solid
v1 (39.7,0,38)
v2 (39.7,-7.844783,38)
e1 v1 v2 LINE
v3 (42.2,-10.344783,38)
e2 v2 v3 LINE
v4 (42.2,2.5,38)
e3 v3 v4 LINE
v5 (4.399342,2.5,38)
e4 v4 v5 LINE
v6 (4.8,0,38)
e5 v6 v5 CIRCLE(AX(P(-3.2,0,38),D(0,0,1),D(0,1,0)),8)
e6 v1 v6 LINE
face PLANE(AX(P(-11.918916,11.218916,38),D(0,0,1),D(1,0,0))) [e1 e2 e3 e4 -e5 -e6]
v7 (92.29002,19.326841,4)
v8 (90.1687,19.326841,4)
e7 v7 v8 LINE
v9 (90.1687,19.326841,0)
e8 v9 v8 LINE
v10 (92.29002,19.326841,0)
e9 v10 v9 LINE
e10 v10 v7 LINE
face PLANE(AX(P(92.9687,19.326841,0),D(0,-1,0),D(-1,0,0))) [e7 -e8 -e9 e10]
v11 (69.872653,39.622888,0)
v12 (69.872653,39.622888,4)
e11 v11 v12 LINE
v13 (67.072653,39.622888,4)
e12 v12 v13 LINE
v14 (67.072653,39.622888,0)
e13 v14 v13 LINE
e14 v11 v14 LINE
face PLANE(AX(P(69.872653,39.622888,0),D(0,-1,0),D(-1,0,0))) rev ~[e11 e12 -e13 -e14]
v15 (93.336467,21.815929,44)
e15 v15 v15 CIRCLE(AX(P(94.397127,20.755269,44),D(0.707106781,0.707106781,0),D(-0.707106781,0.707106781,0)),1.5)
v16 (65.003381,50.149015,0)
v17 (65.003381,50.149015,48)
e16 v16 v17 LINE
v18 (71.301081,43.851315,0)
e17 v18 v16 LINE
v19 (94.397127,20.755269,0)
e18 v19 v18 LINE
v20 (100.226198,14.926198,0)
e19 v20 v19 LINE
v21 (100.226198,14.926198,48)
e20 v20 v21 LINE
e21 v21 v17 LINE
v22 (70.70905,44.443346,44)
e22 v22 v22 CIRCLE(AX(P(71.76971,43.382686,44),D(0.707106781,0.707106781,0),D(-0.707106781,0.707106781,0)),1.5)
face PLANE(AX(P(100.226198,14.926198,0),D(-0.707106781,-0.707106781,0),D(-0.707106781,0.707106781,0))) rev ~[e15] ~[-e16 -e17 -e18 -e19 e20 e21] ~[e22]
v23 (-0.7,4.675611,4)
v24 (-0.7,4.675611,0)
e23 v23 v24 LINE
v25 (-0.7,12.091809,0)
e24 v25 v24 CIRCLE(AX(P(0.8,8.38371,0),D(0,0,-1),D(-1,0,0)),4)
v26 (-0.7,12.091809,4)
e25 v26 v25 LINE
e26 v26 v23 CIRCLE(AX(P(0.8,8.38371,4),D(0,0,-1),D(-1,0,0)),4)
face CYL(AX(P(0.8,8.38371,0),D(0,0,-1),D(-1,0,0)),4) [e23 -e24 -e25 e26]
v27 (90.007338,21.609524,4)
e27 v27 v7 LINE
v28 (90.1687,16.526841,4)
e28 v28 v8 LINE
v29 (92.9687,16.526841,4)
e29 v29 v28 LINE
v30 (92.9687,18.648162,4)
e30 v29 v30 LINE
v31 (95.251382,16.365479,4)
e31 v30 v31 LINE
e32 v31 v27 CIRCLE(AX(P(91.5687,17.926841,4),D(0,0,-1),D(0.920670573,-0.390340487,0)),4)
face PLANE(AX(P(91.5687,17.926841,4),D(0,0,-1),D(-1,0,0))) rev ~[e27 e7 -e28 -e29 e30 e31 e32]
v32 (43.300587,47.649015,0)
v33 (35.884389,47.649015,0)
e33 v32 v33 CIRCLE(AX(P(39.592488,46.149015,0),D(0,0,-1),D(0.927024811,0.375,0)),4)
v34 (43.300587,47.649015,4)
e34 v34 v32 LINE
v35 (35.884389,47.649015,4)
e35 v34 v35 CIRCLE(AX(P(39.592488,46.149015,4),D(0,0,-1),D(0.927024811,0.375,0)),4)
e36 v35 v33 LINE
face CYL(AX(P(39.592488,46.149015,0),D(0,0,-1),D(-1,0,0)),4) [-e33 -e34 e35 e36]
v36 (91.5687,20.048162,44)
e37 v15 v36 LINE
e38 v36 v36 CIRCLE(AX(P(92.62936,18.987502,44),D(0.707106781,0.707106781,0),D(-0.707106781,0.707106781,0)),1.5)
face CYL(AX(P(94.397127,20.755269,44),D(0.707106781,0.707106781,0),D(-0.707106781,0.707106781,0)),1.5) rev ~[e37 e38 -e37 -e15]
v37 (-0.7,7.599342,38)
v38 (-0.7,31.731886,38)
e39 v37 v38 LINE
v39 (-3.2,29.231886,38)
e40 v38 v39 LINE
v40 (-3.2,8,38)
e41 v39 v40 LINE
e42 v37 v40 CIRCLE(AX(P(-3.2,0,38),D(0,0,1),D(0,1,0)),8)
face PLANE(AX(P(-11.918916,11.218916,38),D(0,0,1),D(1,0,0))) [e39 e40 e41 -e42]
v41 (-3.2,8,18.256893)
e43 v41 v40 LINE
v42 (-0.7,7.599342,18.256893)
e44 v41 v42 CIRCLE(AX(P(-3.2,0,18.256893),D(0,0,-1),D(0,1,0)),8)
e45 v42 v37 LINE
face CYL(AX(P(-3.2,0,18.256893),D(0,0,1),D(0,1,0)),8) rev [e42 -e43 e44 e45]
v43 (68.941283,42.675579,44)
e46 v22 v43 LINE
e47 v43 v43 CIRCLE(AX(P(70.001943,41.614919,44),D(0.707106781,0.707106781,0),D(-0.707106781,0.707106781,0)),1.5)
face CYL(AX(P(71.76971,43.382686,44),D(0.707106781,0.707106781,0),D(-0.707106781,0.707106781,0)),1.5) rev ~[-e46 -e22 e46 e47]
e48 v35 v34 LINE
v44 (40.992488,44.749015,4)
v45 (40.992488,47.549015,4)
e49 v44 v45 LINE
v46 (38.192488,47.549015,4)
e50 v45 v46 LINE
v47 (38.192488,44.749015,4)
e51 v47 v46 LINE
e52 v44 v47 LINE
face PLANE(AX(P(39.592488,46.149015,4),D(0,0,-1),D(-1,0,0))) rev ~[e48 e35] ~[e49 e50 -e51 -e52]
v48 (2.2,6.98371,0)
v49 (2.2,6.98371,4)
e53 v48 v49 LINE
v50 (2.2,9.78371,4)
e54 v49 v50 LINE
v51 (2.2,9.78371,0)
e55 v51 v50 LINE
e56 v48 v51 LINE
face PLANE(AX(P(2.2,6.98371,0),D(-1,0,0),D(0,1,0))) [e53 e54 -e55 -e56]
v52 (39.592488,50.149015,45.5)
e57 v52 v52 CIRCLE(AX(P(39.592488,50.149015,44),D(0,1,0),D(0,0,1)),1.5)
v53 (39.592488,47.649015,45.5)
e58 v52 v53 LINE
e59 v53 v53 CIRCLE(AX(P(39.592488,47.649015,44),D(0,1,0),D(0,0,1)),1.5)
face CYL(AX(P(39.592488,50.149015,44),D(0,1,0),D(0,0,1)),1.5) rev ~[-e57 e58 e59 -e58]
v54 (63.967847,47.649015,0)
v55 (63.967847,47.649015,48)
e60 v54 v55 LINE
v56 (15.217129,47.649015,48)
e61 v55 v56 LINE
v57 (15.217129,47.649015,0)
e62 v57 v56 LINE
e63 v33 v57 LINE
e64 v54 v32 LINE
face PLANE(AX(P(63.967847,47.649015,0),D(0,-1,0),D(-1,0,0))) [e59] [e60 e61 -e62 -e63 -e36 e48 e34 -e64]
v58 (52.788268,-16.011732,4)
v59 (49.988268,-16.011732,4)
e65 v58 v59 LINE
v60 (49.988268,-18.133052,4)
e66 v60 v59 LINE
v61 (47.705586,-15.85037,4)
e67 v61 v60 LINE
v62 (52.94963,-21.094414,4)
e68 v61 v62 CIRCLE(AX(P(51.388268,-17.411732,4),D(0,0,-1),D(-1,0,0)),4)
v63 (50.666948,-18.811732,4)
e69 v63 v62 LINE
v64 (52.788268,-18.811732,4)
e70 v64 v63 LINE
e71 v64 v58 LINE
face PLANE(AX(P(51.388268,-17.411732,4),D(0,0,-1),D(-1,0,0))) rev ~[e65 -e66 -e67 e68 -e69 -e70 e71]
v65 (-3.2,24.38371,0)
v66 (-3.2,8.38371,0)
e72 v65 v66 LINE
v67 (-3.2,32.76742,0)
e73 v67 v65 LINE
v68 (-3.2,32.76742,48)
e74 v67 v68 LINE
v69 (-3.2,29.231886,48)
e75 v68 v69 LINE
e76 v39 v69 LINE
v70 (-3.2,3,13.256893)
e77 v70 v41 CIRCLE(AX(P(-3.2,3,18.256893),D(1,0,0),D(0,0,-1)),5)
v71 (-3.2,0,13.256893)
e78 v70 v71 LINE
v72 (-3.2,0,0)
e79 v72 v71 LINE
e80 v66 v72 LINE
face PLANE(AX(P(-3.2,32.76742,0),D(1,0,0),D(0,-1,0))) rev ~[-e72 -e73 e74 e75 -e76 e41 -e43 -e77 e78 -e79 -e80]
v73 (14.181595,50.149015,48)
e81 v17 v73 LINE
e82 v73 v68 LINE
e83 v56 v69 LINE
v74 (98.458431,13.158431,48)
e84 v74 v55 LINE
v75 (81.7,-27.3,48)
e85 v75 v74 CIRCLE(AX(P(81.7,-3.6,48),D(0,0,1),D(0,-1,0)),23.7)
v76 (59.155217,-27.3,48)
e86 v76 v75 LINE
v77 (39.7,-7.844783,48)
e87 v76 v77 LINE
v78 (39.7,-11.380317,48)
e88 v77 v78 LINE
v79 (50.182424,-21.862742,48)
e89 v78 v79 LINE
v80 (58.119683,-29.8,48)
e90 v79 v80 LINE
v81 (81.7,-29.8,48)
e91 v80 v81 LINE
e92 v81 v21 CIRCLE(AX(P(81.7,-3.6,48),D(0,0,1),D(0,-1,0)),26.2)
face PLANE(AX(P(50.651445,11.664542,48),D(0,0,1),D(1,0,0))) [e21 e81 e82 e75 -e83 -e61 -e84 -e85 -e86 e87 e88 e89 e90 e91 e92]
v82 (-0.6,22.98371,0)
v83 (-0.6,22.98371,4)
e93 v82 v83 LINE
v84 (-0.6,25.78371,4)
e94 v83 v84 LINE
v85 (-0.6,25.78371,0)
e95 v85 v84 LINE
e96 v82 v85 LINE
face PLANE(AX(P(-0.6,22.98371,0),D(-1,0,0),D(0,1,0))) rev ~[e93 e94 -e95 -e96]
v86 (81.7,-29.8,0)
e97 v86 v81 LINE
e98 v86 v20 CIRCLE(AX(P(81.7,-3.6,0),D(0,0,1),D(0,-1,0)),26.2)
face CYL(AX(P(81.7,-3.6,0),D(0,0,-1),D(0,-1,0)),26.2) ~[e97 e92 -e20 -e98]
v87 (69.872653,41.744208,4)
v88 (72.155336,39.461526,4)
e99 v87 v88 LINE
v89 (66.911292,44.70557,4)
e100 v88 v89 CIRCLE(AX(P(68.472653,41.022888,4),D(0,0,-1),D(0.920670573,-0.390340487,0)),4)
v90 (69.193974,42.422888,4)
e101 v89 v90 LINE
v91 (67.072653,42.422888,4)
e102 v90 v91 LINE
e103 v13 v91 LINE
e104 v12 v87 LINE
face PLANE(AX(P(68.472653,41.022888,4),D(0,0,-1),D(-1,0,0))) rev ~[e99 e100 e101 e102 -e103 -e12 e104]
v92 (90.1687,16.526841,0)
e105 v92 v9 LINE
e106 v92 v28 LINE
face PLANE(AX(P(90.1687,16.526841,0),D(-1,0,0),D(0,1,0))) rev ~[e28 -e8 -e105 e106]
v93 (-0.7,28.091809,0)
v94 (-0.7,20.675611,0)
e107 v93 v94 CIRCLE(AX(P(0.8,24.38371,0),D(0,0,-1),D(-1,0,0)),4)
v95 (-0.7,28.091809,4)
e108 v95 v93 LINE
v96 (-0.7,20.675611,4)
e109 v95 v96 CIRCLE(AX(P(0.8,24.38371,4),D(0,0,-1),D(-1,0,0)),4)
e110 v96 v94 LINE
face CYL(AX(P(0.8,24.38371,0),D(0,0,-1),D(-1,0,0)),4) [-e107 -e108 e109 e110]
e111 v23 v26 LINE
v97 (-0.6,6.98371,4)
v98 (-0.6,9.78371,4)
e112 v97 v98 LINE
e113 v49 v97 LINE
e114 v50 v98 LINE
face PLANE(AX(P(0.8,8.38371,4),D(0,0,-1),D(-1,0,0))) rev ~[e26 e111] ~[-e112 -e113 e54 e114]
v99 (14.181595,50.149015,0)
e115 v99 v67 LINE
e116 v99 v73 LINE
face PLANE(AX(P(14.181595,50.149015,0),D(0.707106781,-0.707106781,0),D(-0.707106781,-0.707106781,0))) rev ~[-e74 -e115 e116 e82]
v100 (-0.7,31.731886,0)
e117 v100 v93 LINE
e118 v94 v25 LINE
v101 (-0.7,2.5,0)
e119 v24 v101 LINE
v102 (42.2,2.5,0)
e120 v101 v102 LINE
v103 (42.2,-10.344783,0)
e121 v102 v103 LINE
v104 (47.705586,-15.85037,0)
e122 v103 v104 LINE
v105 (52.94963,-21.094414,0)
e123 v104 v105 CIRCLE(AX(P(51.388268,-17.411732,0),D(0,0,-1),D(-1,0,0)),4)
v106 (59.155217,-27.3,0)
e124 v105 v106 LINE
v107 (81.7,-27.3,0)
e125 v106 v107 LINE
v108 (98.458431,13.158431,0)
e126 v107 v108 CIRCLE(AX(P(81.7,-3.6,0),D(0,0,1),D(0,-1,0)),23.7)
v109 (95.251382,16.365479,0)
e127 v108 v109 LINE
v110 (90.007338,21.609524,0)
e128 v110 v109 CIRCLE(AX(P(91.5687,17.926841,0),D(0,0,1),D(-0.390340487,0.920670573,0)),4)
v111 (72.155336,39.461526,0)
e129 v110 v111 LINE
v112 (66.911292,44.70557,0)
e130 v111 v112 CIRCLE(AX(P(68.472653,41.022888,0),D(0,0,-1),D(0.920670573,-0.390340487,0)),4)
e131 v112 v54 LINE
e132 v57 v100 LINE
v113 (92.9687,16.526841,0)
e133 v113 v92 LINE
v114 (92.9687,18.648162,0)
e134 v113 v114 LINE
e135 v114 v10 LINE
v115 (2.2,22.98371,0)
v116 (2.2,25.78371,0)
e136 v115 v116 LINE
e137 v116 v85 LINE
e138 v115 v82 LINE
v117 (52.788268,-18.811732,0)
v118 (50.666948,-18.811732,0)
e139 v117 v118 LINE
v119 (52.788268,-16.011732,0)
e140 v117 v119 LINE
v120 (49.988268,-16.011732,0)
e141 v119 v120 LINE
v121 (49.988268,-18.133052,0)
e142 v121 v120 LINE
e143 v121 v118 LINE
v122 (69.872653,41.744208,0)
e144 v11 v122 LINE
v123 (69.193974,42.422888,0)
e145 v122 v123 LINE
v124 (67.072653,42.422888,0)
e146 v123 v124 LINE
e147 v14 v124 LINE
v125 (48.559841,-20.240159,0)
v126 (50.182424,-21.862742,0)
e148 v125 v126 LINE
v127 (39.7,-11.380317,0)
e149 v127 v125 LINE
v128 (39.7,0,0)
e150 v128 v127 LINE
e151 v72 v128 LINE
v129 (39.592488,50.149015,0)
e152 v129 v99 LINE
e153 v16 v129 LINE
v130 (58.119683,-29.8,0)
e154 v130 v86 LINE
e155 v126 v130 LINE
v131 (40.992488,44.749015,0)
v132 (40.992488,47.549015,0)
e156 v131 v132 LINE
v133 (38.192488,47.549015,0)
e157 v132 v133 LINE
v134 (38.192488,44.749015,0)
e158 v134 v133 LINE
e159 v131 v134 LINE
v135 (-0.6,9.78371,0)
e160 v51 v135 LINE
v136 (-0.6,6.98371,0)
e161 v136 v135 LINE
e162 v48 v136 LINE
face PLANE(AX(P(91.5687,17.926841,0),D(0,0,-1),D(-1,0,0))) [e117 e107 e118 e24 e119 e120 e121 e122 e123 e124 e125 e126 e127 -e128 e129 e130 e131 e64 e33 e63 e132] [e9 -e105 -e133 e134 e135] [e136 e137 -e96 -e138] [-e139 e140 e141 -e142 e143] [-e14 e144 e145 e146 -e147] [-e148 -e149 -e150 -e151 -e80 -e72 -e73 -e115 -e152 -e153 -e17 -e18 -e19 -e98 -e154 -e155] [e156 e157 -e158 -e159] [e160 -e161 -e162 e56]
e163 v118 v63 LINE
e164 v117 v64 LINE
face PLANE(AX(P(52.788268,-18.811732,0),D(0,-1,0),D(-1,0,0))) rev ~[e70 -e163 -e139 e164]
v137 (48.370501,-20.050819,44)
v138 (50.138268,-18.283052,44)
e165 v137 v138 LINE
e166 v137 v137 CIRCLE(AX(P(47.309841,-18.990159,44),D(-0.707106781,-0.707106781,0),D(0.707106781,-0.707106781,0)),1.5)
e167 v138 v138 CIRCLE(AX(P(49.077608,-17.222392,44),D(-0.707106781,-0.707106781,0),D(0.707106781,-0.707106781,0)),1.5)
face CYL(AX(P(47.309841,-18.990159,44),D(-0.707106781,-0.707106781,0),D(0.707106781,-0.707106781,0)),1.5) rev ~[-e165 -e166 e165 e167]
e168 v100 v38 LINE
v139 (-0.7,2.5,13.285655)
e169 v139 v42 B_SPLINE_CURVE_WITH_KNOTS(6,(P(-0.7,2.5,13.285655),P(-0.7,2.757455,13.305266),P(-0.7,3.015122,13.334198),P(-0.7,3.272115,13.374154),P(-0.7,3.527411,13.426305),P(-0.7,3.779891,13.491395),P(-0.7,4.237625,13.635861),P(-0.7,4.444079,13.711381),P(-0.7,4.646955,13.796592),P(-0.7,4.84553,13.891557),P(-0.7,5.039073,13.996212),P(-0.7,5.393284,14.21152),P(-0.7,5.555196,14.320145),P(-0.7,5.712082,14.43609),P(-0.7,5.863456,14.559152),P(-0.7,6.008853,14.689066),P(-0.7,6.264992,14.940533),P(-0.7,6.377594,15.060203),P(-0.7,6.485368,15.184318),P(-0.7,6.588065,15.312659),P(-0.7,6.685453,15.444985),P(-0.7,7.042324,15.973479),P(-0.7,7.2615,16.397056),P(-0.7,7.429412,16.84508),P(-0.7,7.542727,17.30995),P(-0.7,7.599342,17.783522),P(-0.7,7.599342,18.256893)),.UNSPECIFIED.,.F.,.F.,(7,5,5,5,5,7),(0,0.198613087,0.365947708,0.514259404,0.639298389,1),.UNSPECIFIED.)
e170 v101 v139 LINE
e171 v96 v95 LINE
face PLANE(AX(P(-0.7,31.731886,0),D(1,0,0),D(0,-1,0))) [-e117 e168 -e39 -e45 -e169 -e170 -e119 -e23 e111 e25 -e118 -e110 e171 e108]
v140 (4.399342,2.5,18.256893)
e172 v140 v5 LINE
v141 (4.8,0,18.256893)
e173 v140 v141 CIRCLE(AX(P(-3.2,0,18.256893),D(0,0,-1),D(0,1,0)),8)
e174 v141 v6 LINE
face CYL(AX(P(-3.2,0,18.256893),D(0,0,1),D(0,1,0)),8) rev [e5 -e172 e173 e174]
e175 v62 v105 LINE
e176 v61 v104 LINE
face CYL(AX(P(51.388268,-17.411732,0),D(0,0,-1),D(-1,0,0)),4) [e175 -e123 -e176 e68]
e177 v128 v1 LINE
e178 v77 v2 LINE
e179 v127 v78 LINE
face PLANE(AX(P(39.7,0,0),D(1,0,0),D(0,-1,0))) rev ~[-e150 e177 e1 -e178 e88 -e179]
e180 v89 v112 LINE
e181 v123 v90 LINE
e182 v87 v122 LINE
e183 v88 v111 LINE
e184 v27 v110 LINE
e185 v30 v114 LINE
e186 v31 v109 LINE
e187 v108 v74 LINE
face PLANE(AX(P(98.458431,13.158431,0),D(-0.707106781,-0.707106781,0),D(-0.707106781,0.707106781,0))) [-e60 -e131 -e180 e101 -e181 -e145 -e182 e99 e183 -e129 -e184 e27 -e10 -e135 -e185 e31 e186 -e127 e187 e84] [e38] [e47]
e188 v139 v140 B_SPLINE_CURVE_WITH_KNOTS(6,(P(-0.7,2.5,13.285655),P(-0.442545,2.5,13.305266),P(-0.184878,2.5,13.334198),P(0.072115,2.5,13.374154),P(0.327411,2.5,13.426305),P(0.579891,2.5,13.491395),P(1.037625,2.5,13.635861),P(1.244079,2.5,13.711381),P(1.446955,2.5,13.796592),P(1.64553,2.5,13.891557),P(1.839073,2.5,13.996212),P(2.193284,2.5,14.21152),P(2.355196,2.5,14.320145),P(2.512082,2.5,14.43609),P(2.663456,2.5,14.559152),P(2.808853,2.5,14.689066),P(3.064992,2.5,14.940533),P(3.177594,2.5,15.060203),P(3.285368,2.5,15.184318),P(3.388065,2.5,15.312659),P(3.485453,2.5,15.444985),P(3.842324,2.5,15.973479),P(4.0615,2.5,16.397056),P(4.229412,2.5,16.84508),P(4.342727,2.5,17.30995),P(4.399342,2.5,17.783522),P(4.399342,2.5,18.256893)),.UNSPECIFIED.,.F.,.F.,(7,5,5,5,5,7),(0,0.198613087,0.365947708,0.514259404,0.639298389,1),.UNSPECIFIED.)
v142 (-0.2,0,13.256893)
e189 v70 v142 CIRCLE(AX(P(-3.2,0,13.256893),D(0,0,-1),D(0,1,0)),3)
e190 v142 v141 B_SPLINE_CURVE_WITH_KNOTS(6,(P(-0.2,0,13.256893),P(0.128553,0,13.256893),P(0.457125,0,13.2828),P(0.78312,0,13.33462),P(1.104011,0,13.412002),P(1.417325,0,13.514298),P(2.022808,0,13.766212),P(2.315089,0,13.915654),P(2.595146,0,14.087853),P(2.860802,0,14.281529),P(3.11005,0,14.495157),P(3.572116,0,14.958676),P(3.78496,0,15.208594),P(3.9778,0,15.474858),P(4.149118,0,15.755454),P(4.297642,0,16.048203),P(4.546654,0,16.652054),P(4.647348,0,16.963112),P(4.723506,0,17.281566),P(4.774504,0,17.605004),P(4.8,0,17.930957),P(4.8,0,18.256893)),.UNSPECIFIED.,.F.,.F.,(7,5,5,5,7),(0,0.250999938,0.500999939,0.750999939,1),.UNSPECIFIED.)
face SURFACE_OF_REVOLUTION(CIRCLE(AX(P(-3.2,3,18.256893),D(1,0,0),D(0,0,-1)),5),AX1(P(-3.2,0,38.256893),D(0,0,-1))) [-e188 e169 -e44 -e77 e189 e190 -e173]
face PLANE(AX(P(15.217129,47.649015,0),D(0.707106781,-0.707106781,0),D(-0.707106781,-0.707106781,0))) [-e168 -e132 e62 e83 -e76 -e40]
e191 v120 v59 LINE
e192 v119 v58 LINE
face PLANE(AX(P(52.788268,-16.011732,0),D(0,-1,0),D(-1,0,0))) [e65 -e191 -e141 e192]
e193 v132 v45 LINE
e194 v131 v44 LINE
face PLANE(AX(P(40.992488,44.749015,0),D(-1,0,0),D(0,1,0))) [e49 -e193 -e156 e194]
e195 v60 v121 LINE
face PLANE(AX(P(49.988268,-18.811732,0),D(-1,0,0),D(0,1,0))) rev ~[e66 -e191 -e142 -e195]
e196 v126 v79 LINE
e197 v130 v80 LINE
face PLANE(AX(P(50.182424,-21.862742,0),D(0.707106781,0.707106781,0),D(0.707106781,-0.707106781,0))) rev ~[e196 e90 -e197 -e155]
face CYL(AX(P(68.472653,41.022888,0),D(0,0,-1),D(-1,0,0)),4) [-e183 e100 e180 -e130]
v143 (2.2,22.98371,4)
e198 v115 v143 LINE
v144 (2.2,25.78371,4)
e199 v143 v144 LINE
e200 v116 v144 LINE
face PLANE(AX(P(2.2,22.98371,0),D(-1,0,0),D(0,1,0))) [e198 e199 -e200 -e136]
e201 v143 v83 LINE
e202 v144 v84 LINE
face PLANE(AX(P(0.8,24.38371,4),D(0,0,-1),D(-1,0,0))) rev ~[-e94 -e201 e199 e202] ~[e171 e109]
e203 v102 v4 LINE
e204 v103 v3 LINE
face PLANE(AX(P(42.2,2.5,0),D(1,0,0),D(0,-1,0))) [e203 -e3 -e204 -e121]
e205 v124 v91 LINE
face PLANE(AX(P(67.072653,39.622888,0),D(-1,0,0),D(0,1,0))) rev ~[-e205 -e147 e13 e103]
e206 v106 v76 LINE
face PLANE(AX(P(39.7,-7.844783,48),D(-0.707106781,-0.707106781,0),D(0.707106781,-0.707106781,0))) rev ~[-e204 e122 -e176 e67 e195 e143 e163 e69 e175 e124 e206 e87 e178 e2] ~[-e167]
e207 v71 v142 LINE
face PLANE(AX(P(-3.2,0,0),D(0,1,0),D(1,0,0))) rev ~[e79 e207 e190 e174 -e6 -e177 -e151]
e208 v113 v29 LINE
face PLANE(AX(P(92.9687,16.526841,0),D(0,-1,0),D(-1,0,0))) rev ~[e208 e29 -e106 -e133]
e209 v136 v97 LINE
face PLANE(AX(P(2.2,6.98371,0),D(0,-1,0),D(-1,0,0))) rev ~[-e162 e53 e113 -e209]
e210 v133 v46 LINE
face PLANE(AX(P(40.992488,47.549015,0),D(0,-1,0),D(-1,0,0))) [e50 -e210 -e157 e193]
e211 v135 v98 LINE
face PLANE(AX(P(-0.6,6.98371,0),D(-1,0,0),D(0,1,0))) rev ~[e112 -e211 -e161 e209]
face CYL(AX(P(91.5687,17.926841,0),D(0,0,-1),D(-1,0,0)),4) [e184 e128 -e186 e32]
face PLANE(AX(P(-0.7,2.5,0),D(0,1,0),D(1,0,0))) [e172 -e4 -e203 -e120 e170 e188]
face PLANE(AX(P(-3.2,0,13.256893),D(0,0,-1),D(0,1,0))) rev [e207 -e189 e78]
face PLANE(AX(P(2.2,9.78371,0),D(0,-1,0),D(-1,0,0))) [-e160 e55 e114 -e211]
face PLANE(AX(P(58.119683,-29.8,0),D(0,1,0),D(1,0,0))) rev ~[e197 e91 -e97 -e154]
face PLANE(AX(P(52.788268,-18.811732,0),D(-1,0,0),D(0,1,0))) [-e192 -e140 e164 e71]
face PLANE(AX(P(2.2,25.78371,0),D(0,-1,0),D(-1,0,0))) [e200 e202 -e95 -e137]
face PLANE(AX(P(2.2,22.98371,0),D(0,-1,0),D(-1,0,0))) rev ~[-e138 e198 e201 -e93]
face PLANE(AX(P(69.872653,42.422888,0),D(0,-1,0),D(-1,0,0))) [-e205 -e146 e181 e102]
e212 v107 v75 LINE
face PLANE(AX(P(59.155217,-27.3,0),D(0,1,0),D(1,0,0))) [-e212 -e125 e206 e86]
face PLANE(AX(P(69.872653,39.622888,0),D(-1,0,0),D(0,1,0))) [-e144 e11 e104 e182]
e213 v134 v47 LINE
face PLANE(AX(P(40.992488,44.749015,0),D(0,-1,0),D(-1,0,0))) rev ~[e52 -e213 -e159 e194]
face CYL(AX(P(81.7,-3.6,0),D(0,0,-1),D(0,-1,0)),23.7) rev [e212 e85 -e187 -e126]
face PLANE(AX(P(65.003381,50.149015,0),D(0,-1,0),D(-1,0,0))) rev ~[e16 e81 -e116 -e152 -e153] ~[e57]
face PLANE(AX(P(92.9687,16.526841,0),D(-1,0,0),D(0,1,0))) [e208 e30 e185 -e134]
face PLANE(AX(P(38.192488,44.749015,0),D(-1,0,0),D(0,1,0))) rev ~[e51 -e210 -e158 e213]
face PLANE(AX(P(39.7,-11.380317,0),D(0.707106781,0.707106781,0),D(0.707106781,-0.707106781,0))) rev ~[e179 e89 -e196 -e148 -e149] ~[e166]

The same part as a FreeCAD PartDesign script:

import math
import FreeCAD as App
import Part
import Sketcher

V = App.Vector
Q = App.Units.Quantity

doc = App.newDocument("Part")
params = doc.addObject("Spreadsheet::Sheet", "Params")
for row, (alias, value) in enumerate([
    ("sketch1_radius", "26.2 mm"),
    ("sketch1_radius2", "23.7 mm"),
    ("sketch1_width", "42.9 mm"),
    ("pad1_length", "48 mm"),
    ("sketch2_diameter", "3 mm"),
    ("pocket1_length", "10 mm"),
    ("sketch3_diameter", "3 mm"),
    ("pocket2_length", "10 mm"),
    ("sketch4_diameter", "3 mm"),
    ("pocket3_length", "10 mm"),
    ("sketch5_diameter", "3 mm"),
    ("pocket4_length", "10 mm"),
    ("sketch6_width", "42.9 mm"),
    ("sketch6_width2", "40.4 mm"),
    ("sketch6_height", "2.5 mm"),
    ("pocket5_length", "10 mm"),
    ("sketch7_diameter", "8 mm"),
    ("sketch7_width", "2.8 mm"),
    ("pad2_length", "4 mm"),
    ("pocket6_length", "10 mm"),
    ("sketch9_radius", "5 mm"),
    ("sketch9_width", "8 mm"),
    ("sketch9_height", "25 mm"),
    ("groove_angle", "360 deg"),
], start=1):
    params.set(f"A{row}", alias)
    params.set(f"B{row}", "=" + value)
    params.setAlias(f"B{row}", alias)

body = doc.addObject("PartDesign::Body", "Body")

# Sketch on XY plane
sketch1 = body.newObject("Sketcher::SketchObject", "Sketch")
sketch1.AttachmentSupport = (doc.getObject("XY_Plane"), [""])
sketch1.MapMode = "FlatFace"
sketch1.addGeometry([
    Part.LineSegment(V(39.7, 0, 0), V(39.7, -11.380317, 0)),  # 0
    Part.LineSegment(V(39.7, -11.380317, 0), V(50.182424, -21.862742, 0)),  # 1
    Part.LineSegment(V(50.182424, -21.862742, 0), V(58.119683, -29.8, 0)),  # 2
    Part.LineSegment(V(58.119683, -29.8, 0), V(81.7, -29.8, 0)),  # 3
    Part.ArcOfCircle(Part.Circle(V(81.7, -3.6, 0), V(0, 0, 1), 26.2), math.radians(-90), math.radians(45)),  # 4
    Part.LineSegment(V(100.226198, 14.926198, 0), V(65.003381, 50.149015, 0)),  # 5
    Part.LineSegment(V(65.003381, 50.149015, 0), V(14.181595, 50.149015, 0)),  # 6
    Part.LineSegment(V(14.181595, 50.149015, 0), V(-3.2, 32.76742, 0)),  # 7
    Part.LineSegment(V(-3.2, 32.76742, 0), V(-3.2, 0, 0)),  # 8
    Part.LineSegment(V(-3.2, 0, 0), V(39.7, 0, 0)),  # 9
    Part.LineSegment(V(42.2, 2.5, 0), V(-0.7, 2.5, 0)),  # 10
    Part.LineSegment(V(-0.7, 2.5, 0), V(-0.7, 31.731886, 0)),  # 11
    Part.LineSegment(V(-0.7, 31.731886, 0), V(15.217129, 47.649015, 0)),  # 12
    Part.LineSegment(V(15.217129, 47.649015, 0), V(63.967847, 47.649015, 0)),  # 13
    Part.LineSegment(V(63.967847, 47.649015, 0), V(98.458431, 13.158431, 0)),  # 14
    Part.ArcOfCircle(Part.Circle(V(81.7, -3.6, 0), V(0, 0, 1), 23.7), math.radians(-90), math.radians(45)),  # 15
    Part.LineSegment(V(81.7, -27.3, 0), V(59.155217, -27.3, 0)),  # 16
    Part.LineSegment(V(59.155217, -27.3, 0), V(42.2, -10.344783, 0)),  # 17
    Part.LineSegment(V(42.2, -10.344783, 0), V(42.2, 2.5, 0)),  # 18
], False)
sketch1.addConstraint([
    Sketcher.Constraint("Coincident", 0, 2, 1, 1),
    Sketcher.Constraint("Coincident", 1, 2, 2, 1),
    Sketcher.Constraint("Coincident", 2, 2, 3, 1),
    Sketcher.Constraint("Tangent", 3, 2, 4, 1),
    Sketcher.Constraint("Tangent", 4, 2, 5, 1),
    Sketcher.Constraint("Coincident", 5, 2, 6, 1),
    Sketcher.Constraint("Coincident", 6, 2, 7, 1),
    Sketcher.Constraint("Coincident", 7, 2, 8, 1),
    Sketcher.Constraint("Coincident", 8, 2, 9, 1),
    Sketcher.Constraint("Coincident", 9, 2, 0, 1),
    Sketcher.Constraint("Coincident", 10, 2, 11, 1),
    Sketcher.Constraint("Coincident", 11, 2, 12, 1),
    Sketcher.Constraint("Coincident", 12, 2, 13, 1),
    Sketcher.Constraint("Coincident", 13, 2, 14, 1),
    Sketcher.Constraint("Tangent", 14, 2, 15, 2),
    Sketcher.Constraint("Tangent", 15, 1, 16, 1),
    Sketcher.Constraint("Coincident", 16, 2, 17, 1),
    Sketcher.Constraint("Coincident", 17, 2, 18, 1),
    Sketcher.Constraint("Coincident", 18, 2, 10, 1),
    Sketcher.Constraint("Vertical", 0),
    Sketcher.Constraint("Horizontal", 3),
    Sketcher.Constraint("Horizontal", 6),
    Sketcher.Constraint("Vertical", 8),
    Sketcher.Constraint("Horizontal", 9),
    Sketcher.Constraint("Horizontal", 10),
    Sketcher.Constraint("Vertical", 11),
    Sketcher.Constraint("Horizontal", 13),
    Sketcher.Constraint("Horizontal", 16),
    Sketcher.Constraint("Vertical", 18),
    Sketcher.Constraint("Coincident", 15, 3, 4, 3),
    Sketcher.Constraint("PointOnObject", 8, 2, -1),
    Sketcher.Constraint("Parallel", 1, 2),
    Sketcher.Constraint("Parallel", 2, 5),
    Sketcher.Constraint("Perpendicular", 5, 7),
    Sketcher.Constraint("Parallel", 7, 12),
    Sketcher.Constraint("Perpendicular", 12, 14),
    Sketcher.Constraint("Parallel", 14, 17),
    Sketcher.Constraint("Equal", 9, 10),
    Sketcher.Constraint("Radius", 4, Q("26.2 mm")),
    Sketcher.Constraint("Radius", 15, Q("23.7 mm")),
    Sketcher.Constraint("Angle", 1, Q("-45 deg")),
    Sketcher.Constraint("DistanceX", 9, 1, 9, 2, Q("42.9 mm")),
    Sketcher.Constraint("DistanceX", 0, 2, 4, 3, Q("42 mm")),
    Sketcher.Constraint("DistanceX", -1, 1, 4, 3, Q("81.7 mm")),
    Sketcher.Constraint("DistanceY", 4, 3, -1, 1, Q("3.6 mm")),
    Sketcher.Constraint("DistanceX", 10, 2, -1, 1, Q("0.7 mm")),
    Sketcher.Constraint("DistanceY", -1, 1, 10, 2, Q("2.5 mm")),
    Sketcher.Constraint("DistanceY", 12, 2, 6, 2, Q("2.5 mm")),
    Sketcher.Constraint("DistanceY", 8, 2, 8, 1, Q("32.76742 mm")),
    Sketcher.Constraint("Distance", 2, Q("11.224978 mm")),
    Sketcher.Constraint("Distance", 12, Q("22.51022 mm")),
    Sketcher.Constraint("Distance", 14, Q("48.777052 mm")),
    Sketcher.Constraint("DistanceX", 3, 1, 3, 2, Q("23.580317 mm")),
    Sketcher.Constraint("DistanceX", 16, 2, 16, 1, Q("22.544783 mm")),
])
sketch1.setExpression("Constraints[38]", "Params.sketch1_radius")
sketch1.setExpression("Constraints[39]", "Params.sketch1_radius2")
sketch1.setExpression("Constraints[41]", "Params.sketch1_width")
pad1 = body.newObject("PartDesign::Pad", "Pad")
pad1.Profile = sketch1
pad1.setExpression("Length", "Params.pad1_length")

# Sketch on an angled plane
sketch2 = body.newObject("Sketcher::SketchObject", "Sketch001")
sketch2.Placement = App.Placement(V(57.576198, 57.576198, 0), App.Rotation(V(0, 0, -1), V(-0.707106781, 0.707106781, 0), V(0.707106781, 0.707106781, 0), "ZXY"))
sketch2.addGeometry([
    Part.Circle(V(-44, -20.072657, 0), V(0, 0, 1), 1.5),
    Part.Circle(V(-44, -52.072657, 0), V(0, 0, 1), 1.5),
], False)
sketch2.addConstraint([
    Sketcher.Constraint("Equal", 0, 1),
    Sketcher.Constraint("Vertical", 0, 3, 1, 3),
    Sketcher.Constraint("Diameter", 0, Q("3 mm")),
    Sketcher.Constraint("DistanceX", 0, 3, -1, 1, Q("44 mm")),
    Sketcher.Constraint("DistanceY", 1, 3, 0, 3, Q("32 mm")),
    Sketcher.Constraint("DistanceY", 0, 3, -1, 1, Q("20.072657 mm")),
])
sketch2.setExpression("Constraints[2]", "Params.sketch2_diameter")
pocket1 = body.newObject("PartDesign::Pocket", "Pocket")
pocket1.Profile = sketch2
pocket1.setExpression("Length", "Params.pocket1_length")

# Sketch on XZ plane
sketch3 = body.newObject("Sketcher::SketchObject", "Sketch002")
sketch3.AttachmentSupport = (doc.getObject("XZ_Plane"), [""])
sketch3.MapMode = "FlatFace"
sketch3.AttachmentOffset = App.Placement(V(0, 0, -50.149015), App.Rotation())
sketch3.addGeometry(Part.Circle(V(39.592488, 44, 0), V(0, 0, 1), 1.5), False)
sketch3.addConstraint([
    Sketcher.Constraint("Diameter", 0, Q("3 mm")),
    Sketcher.Constraint("DistanceY", -1, 1, 0, 3, Q("44 mm")),
    Sketcher.Constraint("DistanceX", -1, 1, 0, 3, Q("39.592488 mm")),
])
sketch3.setExpression("Constraints[0]", "Params.sketch3_diameter")
pocket2 = body.newObject("PartDesign::Pocket", "Pocket001")
pocket2.Profile = sketch3
pocket2.setExpression("Length", "Params.pocket2_length")
pocket2.Reversed = True

# Sketch on YZ plane
sketch4 = body.newObject("Sketcher::SketchObject", "Sketch003")
sketch4.AttachmentSupport = (doc.getObject("YZ_Plane"), [""])
sketch4.MapMode = "FlatFace"
sketch4.AttachmentOffset = App.Placement(V(0, 0, -3.2), App.Rotation())
sketch4.addGeometry([
    Part.Circle(V(23.701037, 44, 0), V(0, 0, 1), 1.5),
    Part.Circle(V(7.740899, 44, 0), V(0, 0, 1), 1.5),
], False)
sketch4.addConstraint([
    Sketcher.Constraint("Equal", 0, 1),
    Sketcher.Constraint("Horizontal", 0, 3, 1, 3),
    Sketcher.Constraint("Diameter", 0, Q("3 mm")),
    Sketcher.Constraint("DistanceY", -1, 1, 0, 3, Q("44 mm")),
    Sketcher.Constraint("DistanceX", -1, 1, 1, 3, Q("7.740899 mm")),
    Sketcher.Constraint("DistanceX", 1, 3, 0, 3, Q("15.960138 mm")),
])
sketch4.setExpression("Constraints[2]", "Params.sketch4_diameter")
pocket3 = body.newObject("PartDesign::Pocket", "Pocket002")
pocket3.Profile = sketch4
pocket3.setExpression("Length", "Params.pocket3_length")
pocket3.Reversed = True

# Sketch on an angled plane
sketch5 = body.newObject("Sketcher::SketchObject", "Sketch004")
sketch5.Placement = App.Placement(V(14.159841, 14.159841, 0), App.Rotation(V(0, 0, 1), V(-0.707106781, 0.707106781, 0), V(-0.707106781, -0.707106781, 0), "ZXY"))
sketch5.addGeometry(Part.Circle(V(44, -46.88118, 0), V(0, 0, 1), 1.5), False)
sketch5.addConstraint([
    Sketcher.Constraint("Diameter", 0, Q("3 mm")),
    Sketcher.Constraint("DistanceX", -1, 1, 0, 3, Q("44 mm")),
    Sketcher.Constraint("DistanceY", 0, 3, -1, 1, Q("46.88118 mm")),
])
sketch5.setExpression("Constraints[0]", "Params.sketch5_diameter")
pocket4 = body.newObject("PartDesign::Pocket", "Pocket003")
pocket4.Profile = sketch5
pocket4.setExpression("Length", "Params.pocket4_length")

# Sketch on XY plane
sketch6 = body.newObject("Sketcher::SketchObject", "Sketch005")
sketch6.AttachmentSupport = (doc.getObject("XY_Plane"), [""])
sketch6.MapMode = "FlatFace"
sketch6.AttachmentOffset = App.Placement(V(0, 0, 48), App.Rotation())
sketch6.addGeometry([
    Part.LineSegment(V(39.7, 0, 0), V(39.7, -7.844783, 0)),  # 0
    Part.LineSegment(V(39.7, -7.844783, 0), V(42.2, -10.344783, 0)),  # 1
    Part.LineSegment(V(42.2, -10.344783, 0), V(42.2, 2.5, 0)),  # 2
    Part.LineSegment(V(42.2, 2.5, 0), V(-0.7, 2.5, 0)),  # 3
    Part.LineSegment(V(-0.7, 2.5, 0), V(-0.7, 0, 0)),  # 4
    Part.LineSegment(V(-0.7, 0, 0), V(39.7, 0, 0)),  # 5
], False)
sketch6.addConstraint([
    Sketcher.Constraint("Coincident", 0, 2, 1, 1),
    Sketcher.Constraint("Coincident", 1, 2, 2, 1),
    Sketcher.Constraint("Coincident", 2, 2, 3, 1),
    Sketcher.Constraint("Coincident", 3, 2, 4, 1),
    Sketcher.Constraint("Coincident", 4, 2, 5, 1),
    Sketcher.Constraint("Coincident", 5, 2, 0, 1),
    Sketcher.Constraint("Vertical", 0),
    Sketcher.Constraint("Vertical", 2),
    Sketcher.Constraint("Horizontal", 3),
    Sketcher.Constraint("Vertical", 4),
    Sketcher.Constraint("Horizontal", 5),
    Sketcher.Constraint("PointOnObject", 4, 2, -1),
    Sketcher.Constraint("Angle", 1, Q("-45 deg")),
    Sketcher.Constraint("DistanceX", 3, 2, 3, 1, Q("42.9 mm")),
    Sketcher.Constraint("DistanceX", 5, 1, 5, 2, Q("40.4 mm")),
    Sketcher.Constraint("DistanceY", 4, 2, 4, 1, Q("2.5 mm")),
    Sketcher.Constraint("DistanceX", -1, 1, 0, 2, Q("39.7 mm")),
    Sketcher.Constraint("DistanceY", 0, 2, 0, 1, Q("7.844783 mm")),
])
sketch6.setExpression("Constraints[13]", "Params.sketch6_width")
sketch6.setExpression("Constraints[14]", "Params.sketch6_width2")
sketch6.setExpression("Constraints[15]", "Params.sketch6_height")
pocket5 = body.newObject("PartDesign::Pocket", "Pocket004")
pocket5.Profile = sketch6
pocket5.setExpression("Length", "Params.pocket5_length")

# Sketch on XY plane
sketch7 = body.newObject("Sketcher::SketchObject", "Sketch006")
sketch7.AttachmentSupport = (doc.getObject("XY_Plane"), [""])
sketch7.MapMode = "FlatFace"
sketch7.addGeometry([
    Part.Circle(V(91.5687, 17.926841, 0), V(0, 0, 1), 4),  # 0
    Part.LineSegment(V(90.1687, 16.526841, 0), V(92.9687, 16.526841, 0)),  # 1
    Part.LineSegment(V(92.9687, 16.526841, 0), V(92.9687, 19.326841, 0)),  # 2
    Part.LineSegment(V(92.9687, 19.326841, 0), V(90.1687, 19.326841, 0)),  # 3
    Part.LineSegment(V(90.1687, 19.326841, 0), V(90.1687, 16.526841, 0)),  # 4
    Part.Circle(V(68.472653, 41.022888, 0), V(0, 0, 1), 4),  # 5
    Part.LineSegment(V(67.072653, 39.622888, 0), V(69.872653, 39.622888, 0)),  # 6
    Part.LineSegment(V(69.872653, 39.622888, 0), V(69.872653, 42.422888, 0)),  # 7
    Part.LineSegment(V(69.872653, 42.422888, 0), V(67.072653, 42.422888, 0)),  # 8
    Part.LineSegment(V(67.072653, 42.422888, 0), V(67.072653, 39.622888, 0)),  # 9
    Part.Circle(V(39.592488, 46.149015, 0), V(0, 0, 1), 4),  # 10
    Part.LineSegment(V(38.192488, 44.749015, 0), V(40.992488, 44.749015, 0)),  # 11
    Part.LineSegment(V(40.992488, 44.749015, 0), V(40.992488, 47.549015, 0)),  # 12
    Part.LineSegment(V(40.992488, 47.549015, 0), V(38.192488, 47.549015, 0)),  # 13
    Part.LineSegment(V(38.192488, 47.549015, 0), V(38.192488, 44.749015, 0)),  # 14
    Part.Circle(V(0.8, 24.38371, 0), V(0, 0, 1), 4),  # 15
    Part.LineSegment(V(-0.6, 22.98371, 0), V(2.2, 22.98371, 0)),  # 16
    Part.LineSegment(V(2.2, 22.98371, 0), V(2.2, 25.78371, 0)),  # 17
    Part.LineSegment(V(2.2, 25.78371, 0), V(-0.6, 25.78371, 0)),  # 18
    Part.LineSegment(V(-0.6, 25.78371, 0), V(-0.6, 22.98371, 0)),  # 19
    Part.Circle(V(0.8, 8.38371, 0), V(0, 0, 1), 4),  # 20
    Part.LineSegment(V(-0.6, 6.98371, 0), V(2.2, 6.98371, 0)),  # 21
    Part.LineSegment(V(2.2, 6.98371, 0), V(2.2, 9.78371, 0)),  # 22
    Part.LineSegment(V(2.2, 9.78371, 0), V(-0.6, 9.78371, 0)),  # 23
    Part.LineSegment(V(-0.6, 9.78371, 0), V(-0.6, 6.98371, 0)),  # 24
    Part.Circle(V(51.388268, -17.411732, 0), V(0, 0, 1), 4),  # 25
    Part.LineSegment(V(49.988268, -18.811732, 0), V(52.788268, -18.811732, 0)),  # 26
    Part.LineSegment(V(52.788268, -18.811732, 0), V(52.788268, -16.011732, 0)),  # 27
    Part.LineSegment(V(52.788268, -16.011732, 0), V(49.988268, -16.011732, 0)),  # 28
    Part.LineSegment(V(49.988268, -16.011732, 0), V(49.988268, -18.811732, 0)),  # 29
], False)
sketch7.addConstraint([
    Sketcher.Constraint("Coincident", 1, 2, 2, 1),
    Sketcher.Constraint("Coincident", 2, 2, 3, 1),
    Sketcher.Constraint("Coincident", 3, 2, 4, 1),
    Sketcher.Constraint("Coincident", 4, 2, 1, 1),
    Sketcher.Constraint("Coincident", 6, 2, 7, 1),
    Sketcher.Constraint("Coincident", 7, 2, 8, 1),
    Sketcher.Constraint("Coincident", 8, 2, 9, 1),
    Sketcher.Constraint("Coincident", 9, 2, 6, 1),
    Sketcher.Constraint("Coincident", 11, 2, 12, 1),
    Sketcher.Constraint("Coincident", 12, 2, 13, 1),
    Sketcher.Constraint("Coincident", 13, 2, 14, 1),
    Sketcher.Constraint("Coincident", 14, 2, 11, 1),
    Sketcher.Constraint("Coincident", 16, 2, 17, 1),
    Sketcher.Constraint("Coincident", 17, 2, 18, 1),
    Sketcher.Constraint("Coincident", 18, 2, 19, 1),
    Sketcher.Constraint("Coincident", 19, 2, 16, 1),
    Sketcher.Constraint("Coincident", 21, 2, 22, 1),
    Sketcher.Constraint("Coincident", 22, 2, 23, 1),
    Sketcher.Constraint("Coincident", 23, 2, 24, 1),
    Sketcher.Constraint("Coincident", 24, 2, 21, 1),
    Sketcher.Constraint("Coincident", 26, 2, 27, 1),
    Sketcher.Constraint("Coincident", 27, 2, 28, 1),
    Sketcher.Constraint("Coincident", 28, 2, 29, 1),
    Sketcher.Constraint("Coincident", 29, 2, 26, 1),
    Sketcher.Constraint("Horizontal", 1),
    Sketcher.Constraint("Vertical", 2),
    Sketcher.Constraint("Horizontal", 3),
    Sketcher.Constraint("Vertical", 4),
    Sketcher.Constraint("Horizontal", 6),
    Sketcher.Constraint("Vertical", 7),
    Sketcher.Constraint("Horizontal", 8),
    Sketcher.Constraint("Vertical", 9),
    Sketcher.Constraint("Horizontal", 11),
    Sketcher.Constraint("Vertical", 12),
    Sketcher.Constraint("Horizontal", 13),
    Sketcher.Constraint("Vertical", 14),
    Sketcher.Constraint("Horizontal", 16),
    Sketcher.Constraint("Vertical", 17),
    Sketcher.Constraint("Horizontal", 18),
    Sketcher.Constraint("Vertical", 19),
    Sketcher.Constraint("Horizontal", 21),
    Sketcher.Constraint("Vertical", 22),
    Sketcher.Constraint("Horizontal", 23),
    Sketcher.Constraint("Vertical", 24),
    Sketcher.Constraint("Horizontal", 26),
    Sketcher.Constraint("Vertical", 27),
    Sketcher.Constraint("Horizontal", 28),
    Sketcher.Constraint("Vertical", 29),
    Sketcher.Constraint("Equal", 0, 5),
    Sketcher.Constraint("Equal", 5, 10),
    Sketcher.Constraint("Equal", 10, 15),
    Sketcher.Constraint("Equal", 15, 20),
    Sketcher.Constraint("Equal", 20, 25),
    Sketcher.Constraint("Vertical", 15, 3, 20, 3),
    Sketcher.Constraint("Vertical", 17, 2, 21, 2),
    Sketcher.Constraint("Vertical", 19, 2, 23, 2),
    Sketcher.Constraint("Equal", 3, 6),
    Sketcher.Constraint("Equal", 8, 11),
    Sketcher.Constraint("Equal", 13, 16),
    Sketcher.Constraint("Equal", 23, 26),
    Sketcher.Constraint("Equal", 28, 2),
    Sketcher.Constraint("Equal", 4, 7),
    Sketcher.Constraint("Equal", 9, 12),
    Sketcher.Constraint("Equal", 14, 17),
    Sketcher.Constraint("Equal", 19, 22),
    Sketcher.Constraint("Equal", 24, 27),
    Sketcher.Constraint("Diameter", 0, Q("8 mm")),
    Sketcher.Constraint("DistanceX", 1, 1, 1, 2, Q("2.8 mm")),
    Sketcher.Constraint("DistanceY", 20, 3, 15, 3, Q("16 mm")),
    Sketcher.Constraint("DistanceY", 21, 2, 16, 2, Q("16 mm")),
    Sketcher.Constraint("DistanceX", -1, 1, 15, 3, Q("0.8 mm")),
    Sketcher.Constraint("DistanceX", -1, 1, 16, 2, Q("2.2 mm")),
    Sketcher.Constraint("DistanceX", 0, 3, 1, 2, Q("1.4 mm")),
    Sketcher.Constraint("DistanceY", 1, 2, 0, 3, Q("1.4 mm")),
    Sketcher.Constraint("DistanceX", 5, 3, 6, 2, Q("1.4 mm")),
    Sketcher.Constraint("DistanceY", 6, 2, 5, 3, Q("1.4 mm")),
    Sketcher.Constraint("DistanceX", 10, 3, 11, 2, Q("1.4 mm")),
    Sketcher.Constraint("DistanceY", 11, 2, 10, 3, Q("1.4 mm")),
    Sketcher.Constraint("DistanceY", 16, 2, 15, 3, Q("1.4 mm")),
    Sketcher.Constraint("DistanceX", 25, 3, 26, 2, Q("1.4 mm")),
    Sketcher.Constraint("DistanceY", 26, 2, 25, 3, Q("1.4 mm")),
    Sketcher.Constraint("DistanceX", -1, 1, 0, 3, Q("91.5687 mm")),
    Sketcher.Constraint("DistanceY", -1, 1, 0, 3, Q("17.926841 mm")),
    Sketcher.Constraint("DistanceY", -1, 1, 15, 3, Q("24.38371 mm")),
    Sketcher.Constraint("DistanceX", -1, 1, 25, 3, Q("51.388268 mm")),
    Sketcher.Constraint("DistanceY", 25, 3, -1, 1, Q("17.411732 mm")),
    Sketcher.Constraint("DistanceX", 10, 3, 0, 3, Q("51.976212 mm")),
    Sketcher.Constraint("DistanceY", 25, 3, 5, 3, Q("58.434619 mm")),
    Sketcher.Constraint("DistanceX", -1, 1, 5, 3, Q("68.472653 mm")),
    Sketcher.Constraint("DistanceY", -1, 1, 10, 3, Q("46.149015 mm")),
])
sketch7.setExpression("Constraints[66]", "Params.sketch7_diameter")
sketch7.setExpression("Constraints[67]", "Params.sketch7_width")
pad2 = body.newObject("PartDesign::Pad", "Pad001")
pad2.Profile = sketch7
pad2.setExpression("Length", "Params.pad2_length")

# Sketch on XY plane
sketch8 = body.newObject("Sketcher::SketchObject", "Sketch007")
sketch8.AttachmentSupport = (doc.getObject("XY_Plane"), [""])
sketch8.MapMode = "FlatFace"
sketch8.AttachmentOffset = App.Placement(V(0, 0, 48), App.Rotation())
sketch8.addGeometry([
    Part.LineSegment(V(-0.7, 31.731886, 0), V(-32.431886, 0, 0)),
    Part.LineSegment(V(-32.431886, 0, 0), V(-0.7, 0, 0)),
    Part.LineSegment(V(-0.7, 0, 0), V(-0.7, 31.731886, 0)),
], False)
sketch8.addConstraint([
    Sketcher.Constraint("Coincident", 0, 2, 1, 1),
    Sketcher.Constraint("Coincident", 1, 2, 2, 1),
    Sketcher.Constraint("Coincident", 2, 2, 0, 1),
    Sketcher.Constraint("Horizontal", 1),
    Sketcher.Constraint("Vertical", 2),
    Sketcher.Constraint("PointOnObject", 0, 2, -1),
    Sketcher.Constraint("Equal", 1, 2),
    Sketcher.Constraint("DistanceX", 1, 2, -1, 1, Q("0.7 mm")),
    Sketcher.Constraint("DistanceX", 1, 1, 1, 2, Q("31.731886 mm")),
])
pocket6 = body.newObject("PartDesign::Pocket", "Pocket005")
pocket6.Profile = sketch8
pocket6.setExpression("Length", "Params.pocket6_length")

# Sketch on YZ plane
sketch9 = body.newObject("Sketcher::SketchObject", "Sketch008")
sketch9.AttachmentSupport = (doc.getObject("YZ_Plane"), [""])
sketch9.MapMode = "FlatFace"
sketch9.AttachmentOffset = App.Placement(V(0, 0, -3.2), App.Rotation())
sketch9.addGeometry([
    Part.LineSegment(V(0, 13.256893, 0), V(0, 38.256893, 0)),  # 0
    Part.LineSegment(V(0, 38.256893, 0), V(8, 38.256893, 0)),  # 1
    Part.LineSegment(V(8, 38.256893, 0), V(8, 18.256893, 0)),  # 2
    Part.ArcOfCircle(Part.Circle(V(3, 18.256893, 0), V(0, 0, 1), 5), math.radians(-90), math.radians(0)),  # 3
    Part.LineSegment(V(3, 13.256893, 0), V(0, 13.256893, 0)),  # 4
], False)
sketch9.addConstraint([
    Sketcher.Constraint("Coincident", 0, 2, 1, 1),
    Sketcher.Constraint("Coincident", 1, 2, 2, 1),
    Sketcher.Constraint("Tangent", 2, 2, 3, 2),
    Sketcher.Constraint("Tangent", 3, 1, 4, 1),
    Sketcher.Constraint("Coincident", 4, 2, 0, 1),
    Sketcher.Constraint("Vertical", 0),
    Sketcher.Constraint("Horizontal", 1),
    Sketcher.Constraint("Vertical", 2),
    Sketcher.Constraint("Horizontal", 4),
    Sketcher.Constraint("PointOnObject", 0, 2, -2),
    Sketcher.Constraint("Radius", 3, Q("5 mm")),
    Sketcher.Constraint("DistanceX", 1, 1, 1, 2, Q("8 mm")),
    Sketcher.Constraint("DistanceY", 0, 1, 0, 2, Q("25 mm")),
    Sketcher.Constraint("DistanceY", -1, 1, 3, 3, Q("18.256893 mm")),
])
sketch9.setExpression("Constraints[10]", "Params.sketch9_radius")
sketch9.setExpression("Constraints[11]", "Params.sketch9_width")
sketch9.setExpression("Constraints[12]", "Params.sketch9_height")
groove = body.newObject("PartDesign::Groove", "Groove")
groove.Profile = sketch9
groove.ReferenceAxis = (sketch9, ["V_Axis"])
groove.setExpression("Angle", "Params.groove_angle")

doc.recompute()
